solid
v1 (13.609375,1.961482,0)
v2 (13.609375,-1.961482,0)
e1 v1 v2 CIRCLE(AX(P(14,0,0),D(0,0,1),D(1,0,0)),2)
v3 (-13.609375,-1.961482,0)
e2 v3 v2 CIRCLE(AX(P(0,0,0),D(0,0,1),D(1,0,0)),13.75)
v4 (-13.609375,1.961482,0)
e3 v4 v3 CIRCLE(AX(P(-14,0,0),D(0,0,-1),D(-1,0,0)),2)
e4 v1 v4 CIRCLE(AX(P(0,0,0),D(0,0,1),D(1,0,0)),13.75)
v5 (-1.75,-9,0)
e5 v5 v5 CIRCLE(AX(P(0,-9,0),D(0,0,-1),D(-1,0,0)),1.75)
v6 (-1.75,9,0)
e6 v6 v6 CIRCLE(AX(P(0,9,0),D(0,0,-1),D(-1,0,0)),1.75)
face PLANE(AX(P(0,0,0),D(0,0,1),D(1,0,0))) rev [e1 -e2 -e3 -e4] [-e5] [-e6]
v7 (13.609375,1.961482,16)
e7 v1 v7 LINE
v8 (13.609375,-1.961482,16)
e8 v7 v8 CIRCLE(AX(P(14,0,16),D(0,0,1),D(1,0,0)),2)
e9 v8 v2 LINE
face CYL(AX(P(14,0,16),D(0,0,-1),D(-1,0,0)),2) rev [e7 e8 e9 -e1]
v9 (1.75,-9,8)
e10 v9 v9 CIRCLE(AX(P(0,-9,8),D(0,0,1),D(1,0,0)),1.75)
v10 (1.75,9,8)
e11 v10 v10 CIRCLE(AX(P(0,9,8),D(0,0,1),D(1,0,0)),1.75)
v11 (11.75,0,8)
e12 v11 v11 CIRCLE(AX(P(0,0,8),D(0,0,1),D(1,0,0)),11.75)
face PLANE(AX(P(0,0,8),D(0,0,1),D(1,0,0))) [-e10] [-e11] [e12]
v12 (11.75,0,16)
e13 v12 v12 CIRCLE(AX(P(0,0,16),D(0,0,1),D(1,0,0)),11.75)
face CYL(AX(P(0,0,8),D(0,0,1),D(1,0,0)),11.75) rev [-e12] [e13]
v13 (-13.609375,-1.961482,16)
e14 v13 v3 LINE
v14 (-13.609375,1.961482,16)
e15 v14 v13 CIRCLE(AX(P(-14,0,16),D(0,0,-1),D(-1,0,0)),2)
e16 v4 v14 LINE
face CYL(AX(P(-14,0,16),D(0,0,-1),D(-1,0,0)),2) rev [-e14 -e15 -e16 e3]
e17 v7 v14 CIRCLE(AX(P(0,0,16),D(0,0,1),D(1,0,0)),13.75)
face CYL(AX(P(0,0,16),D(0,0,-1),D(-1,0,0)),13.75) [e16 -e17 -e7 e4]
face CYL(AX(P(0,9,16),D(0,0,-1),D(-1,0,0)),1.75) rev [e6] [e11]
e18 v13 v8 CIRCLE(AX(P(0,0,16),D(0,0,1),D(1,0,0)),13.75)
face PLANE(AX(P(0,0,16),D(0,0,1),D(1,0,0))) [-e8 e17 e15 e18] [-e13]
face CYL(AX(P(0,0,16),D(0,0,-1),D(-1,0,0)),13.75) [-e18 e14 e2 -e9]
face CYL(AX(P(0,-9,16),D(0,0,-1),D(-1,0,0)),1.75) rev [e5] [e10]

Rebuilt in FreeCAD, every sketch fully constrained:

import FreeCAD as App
import Part
import Sketcher
from FreeCAD import Vector
Q = App.Units.Quantity

doc = App.newDocument("Part")
params = doc.addObject("Spreadsheet::Sheet", "Params")
for row, (alias, value) in enumerate([
    ("sketch1_diameter", "27.5 mm"),
    ("pad1_length", "16 mm"),
    ("sketch2_diameter", "23.5 mm"),
    ("pocket1_length", "8 mm"),
    ("sketch3_diameter", "3.5 mm"),
    ("sketch4_diameter", "4 mm"),
], start=1):
    params.set(f"A{row}", alias)
    params.set(f"B{row}", "=" + value)
    params.setAlias(f"B{row}", alias)

body = doc.addObject("PartDesign::Body", "Body")

sketch1 = body.newObject("Sketcher::SketchObject", "Sketch")
sketch1.AttachmentSupport = (doc.getObject("XY_Plane"), [""])
sketch1.MapMode = "FlatFace"
sketch1.addGeometry(Part.Circle(Vector(0, 0, 0), Vector(0, 0, 1), 14), False)
sketch1.addConstraint(Sketcher.Constraint("Coincident", 0, 3, -1, 1))
sketch1.addConstraint(Sketcher.Constraint("Diameter", 0, Q("27.5 mm")))
sketch1.setExpression("Constraints[1]", "Params.sketch1_diameter")
pad1 = body.newObject("PartDesign::Pad", "Pad")
pad1.Profile = sketch1
pad1.setExpression("Length", "Params.pad1_length")

sketch2 = body.newObject("Sketcher::SketchObject", "Sketch001")
sketch2.AttachmentSupport = (doc.getObject("XY_Plane"), [""])
sketch2.MapMode = "FlatFace"
sketch2.AttachmentOffset = App.Placement(Vector(0, 0, 16), App.Rotation())
sketch2.addGeometry(Part.Circle(Vector(0, 0, 0), Vector(0, 0, 1), 12), False)
sketch2.addConstraint(Sketcher.Constraint("Coincident", 0, 3, -1, 1))
sketch2.addConstraint(Sketcher.Constraint("Diameter", 0, Q("23.5 mm")))
sketch2.setExpression("Constraints[1]", "Params.sketch2_diameter")
pocket1 = body.newObject("PartDesign::Pocket", "Pocket")
pocket1.Profile = sketch2
pocket1.setExpression("Length", "Params.pocket1_length")

sketch3 = body.newObject("Sketcher::SketchObject", "Sketch002")
sketch3.AttachmentSupport = (doc.getObject("XY_Plane"), [""])
sketch3.MapMode = "FlatFace"
sketch3.addGeometry(Part.Circle(Vector(0, -9, 0), Vector(0, 0, 1), 1.8), False)
sketch3.addGeometry(Part.Circle(Vector(0, 9, 0), Vector(0, 0, 1), 1.8), False)
sketch3.addConstraint(Sketcher.Constraint("Equal", 0, 1))
sketch3.addConstraint(Sketcher.Constraint("Symmetric", 0, 3, 1, 3, -1, 1))
sketch3.addConstraint(Sketcher.Constraint("PointOnObject", 0, 3, -2))
sketch3.addConstraint(Sketcher.Constraint("Diameter", 0, Q("3.5 mm")))
sketch3.addConstraint(Sketcher.Constraint("DistanceY", 0, 3, -1, 1, Q("9 mm")))
sketch3.setExpression("Constraints[3]", "Params.sketch3_diameter")
pocket2 = body.newObject("PartDesign::Pocket", "Pocket001")
pocket2.Profile = sketch3
pocket2.Type = "ThroughAll"
pocket2.Reversed = True

sketch4 = body.newObject("Sketcher::SketchObject", "Sketch003")
sketch4.AttachmentSupport = (doc.getObject("XY_Plane"), [""])
sketch4.MapMode = "FlatFace"
sketch4.addGeometry(Part.Circle(Vector(-14, 0, 0), Vector(0, 0, 1), 2), False)
sketch4.addConstraint(Sketcher.Constraint("PointOnObject", 0, 3, -1))
sketch4.addConstraint(Sketcher.Constraint("Diameter", 0, Q("4 mm")))
sketch4.addConstraint(Sketcher.Constraint("DistanceX", 0, 3, -1, 1, Q("14 mm")))
sketch4.setExpression("Constraints[1]", "Params.sketch4_diameter")
pocket3 = body.newObject("PartDesign::Pocket", "Pocket002")
pocket3.Profile = sketch4
pocket3.Type = "ThroughAll"
pocket3.Reversed = True
doc.recompute()

mirrored = body.newObject("PartDesign::Mirrored", "Mirrored")
mirrored.Originals = [pocket3]
mirrored.MirrorPlane = (doc.getObject("YZ_Plane"), [""])
body.Tip = mirrored

doc.recompute()
